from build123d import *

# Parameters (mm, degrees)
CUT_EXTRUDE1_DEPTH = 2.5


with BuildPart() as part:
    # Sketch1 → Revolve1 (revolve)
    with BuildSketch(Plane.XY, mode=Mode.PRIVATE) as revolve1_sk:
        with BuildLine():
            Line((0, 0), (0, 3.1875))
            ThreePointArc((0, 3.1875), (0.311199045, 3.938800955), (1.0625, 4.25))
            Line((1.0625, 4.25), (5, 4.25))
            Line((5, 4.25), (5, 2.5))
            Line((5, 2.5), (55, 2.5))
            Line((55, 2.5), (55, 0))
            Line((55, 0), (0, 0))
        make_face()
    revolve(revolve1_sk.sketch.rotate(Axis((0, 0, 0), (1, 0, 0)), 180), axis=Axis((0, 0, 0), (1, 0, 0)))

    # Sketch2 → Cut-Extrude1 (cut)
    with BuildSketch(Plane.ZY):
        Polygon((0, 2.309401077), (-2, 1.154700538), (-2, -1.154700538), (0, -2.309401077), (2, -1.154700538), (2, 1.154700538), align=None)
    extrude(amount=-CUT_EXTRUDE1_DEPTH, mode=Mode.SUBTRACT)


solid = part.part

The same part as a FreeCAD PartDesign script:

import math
import FreeCAD as App
import Part
import Sketcher
from FreeCAD import Vector
Q = App.Units.Quantity

doc = App.newDocument("Part")
body = doc.addObject("PartDesign::Body", "Body")

# Sketch on XY plane
sketch1 = body.newObject("Sketcher::SketchObject", "Sketch")
sketch1.AttachmentSupport = (doc.getObject("XY_Plane"), [""])
sketch1.MapMode = "FlatFace"
sketch1.addGeometry([
    Part.LineSegment(Vector(0, 3.2, 0), Vector(0, 0, 0)),  # 0
    Part.LineSegment(Vector(0, 0, 0), Vector(55, 0, 0)),  # 1
    Part.LineSegment(Vector(55, 0, 0), Vector(55, 2.5, 0)),  # 2
    Part.LineSegment(Vector(55, 2.5, 0), Vector(5, 2.5, 0)),  # 3
    Part.LineSegment(Vector(5, 2.5, 0), Vector(5, 4.2, 0)),  # 4
    Part.LineSegment(Vector(5, 4.2, 0), Vector(1.1, 4.2, 0)),  # 5
    Part.ArcOfCircle(Part.Circle(Vector(1.1, 3.2, 0), Vector(0, 0, 1), 1.1), math.radians(90), math.radians(180)),  # 6
], False)
sketch1.addConstraint([
    Sketcher.Constraint("Coincident", 0, 2, 1, 1),
    Sketcher.Constraint("Coincident", 1, 2, 2, 1),
    Sketcher.Constraint("Coincident", 2, 2, 3, 1),
    Sketcher.Constraint("Coincident", 3, 2, 4, 1),
    Sketcher.Constraint("Coincident", 4, 2, 5, 1),
    Sketcher.Constraint("Tangent", 5, 2, 6, 1),
    Sketcher.Constraint("Tangent", 6, 2, 0, 1),
    Sketcher.Constraint("Vertical", 0),
    Sketcher.Constraint("Horizontal", 1),
    Sketcher.Constraint("Vertical", 2),
    Sketcher.Constraint("Horizontal", 3),
    Sketcher.Constraint("Vertical", 4),
    Sketcher.Constraint("Horizontal", 5),
    Sketcher.Constraint("Coincident", 0, 2, -1, 1),
    Sketcher.Constraint("DistanceX", 1, 1, 1, 2, 55.0),
    Sketcher.Constraint("DistanceX", 3, 2, 3, 1, 50.0),
    Sketcher.Constraint("DistanceY", 2, 1, 2, 2, 2.5),
    Sketcher.Constraint("DistanceY", 4, 1, 4, 2, 1.75),
    Sketcher.Constraint("Radius", 6, 1.0625),
])
revolution = body.newObject("PartDesign::Revolution", "Revolution")
revolution.Profile = sketch1
revolution.ReferenceAxis = (sketch1, ["H_Axis"])
revolution.Angle = 360

# Sketch on YZ plane
sketch2 = body.newObject("Sketcher::SketchObject", "Sketch001")
sketch2.AttachmentSupport = (doc.getObject("YZ_Plane"), [""])
sketch2.MapMode = "FlatFace"
sketch2.addGeometry([
    Part.LineSegment(Vector(2.3, 0, 0), Vector(1.2, -2, 0)),  # 0
    Part.LineSegment(Vector(1.2, -2, 0), Vector(-1.2, -2, 0)),  # 1
    Part.LineSegment(Vector(-1.2, -2, 0), Vector(-2.3, 0, 0)),  # 2
    Part.LineSegment(Vector(-2.3, 0, 0), Vector(-1.2, 2, 0)),  # 3
    Part.LineSegment(Vector(-1.2, 2, 0), Vector(1.2, 2, 0)),  # 4
    Part.LineSegment(Vector(1.2, 2, 0), Vector(2.3, 0, 0)),  # 5
], False)
sketch2.addConstraint([
    Sketcher.Constraint("Coincident", 0, 2, 1, 1),
    Sketcher.Constraint("Coincident", 1, 2, 2, 1),
    Sketcher.Constraint("Coincident", 2, 2, 3, 1),
    Sketcher.Constraint("Coincident", 3, 2, 4, 1),
    Sketcher.Constraint("Coincident", 4, 2, 5, 1),
    Sketcher.Constraint("Coincident", 5, 2, 0, 1),
    Sketcher.Constraint("Horizontal", 1),
    Sketcher.Constraint("Horizontal", 4),
    Sketcher.Constraint("Symmetric", 0, 2, 3, 2, -1, 1),
    Sketcher.Constraint("Symmetric", 2, 2, 5, 2, -1, 1),
    Sketcher.Constraint("PointOnObject", 2, 2, -1),
    Sketcher.Constraint("Parallel", 2, 5),
    Sketcher.Constraint("Vertical", 1, 2, 3, 2),
    Sketcher.Constraint("Angle", 0, Q("-120 deg")),
    Sketcher.Constraint("DistanceY", 0, 2, -1, 1, 2.0),
    Sketcher.Constraint("DistanceX", 1, 2, 1, 1, 2.309401),
])
pocket1 = body.newObject("PartDesign::Pocket", "Pocket")
pocket1.Profile = sketch2
pocket1.Length = 2.5
pocket1.Reversed = True

doc.recompute()
